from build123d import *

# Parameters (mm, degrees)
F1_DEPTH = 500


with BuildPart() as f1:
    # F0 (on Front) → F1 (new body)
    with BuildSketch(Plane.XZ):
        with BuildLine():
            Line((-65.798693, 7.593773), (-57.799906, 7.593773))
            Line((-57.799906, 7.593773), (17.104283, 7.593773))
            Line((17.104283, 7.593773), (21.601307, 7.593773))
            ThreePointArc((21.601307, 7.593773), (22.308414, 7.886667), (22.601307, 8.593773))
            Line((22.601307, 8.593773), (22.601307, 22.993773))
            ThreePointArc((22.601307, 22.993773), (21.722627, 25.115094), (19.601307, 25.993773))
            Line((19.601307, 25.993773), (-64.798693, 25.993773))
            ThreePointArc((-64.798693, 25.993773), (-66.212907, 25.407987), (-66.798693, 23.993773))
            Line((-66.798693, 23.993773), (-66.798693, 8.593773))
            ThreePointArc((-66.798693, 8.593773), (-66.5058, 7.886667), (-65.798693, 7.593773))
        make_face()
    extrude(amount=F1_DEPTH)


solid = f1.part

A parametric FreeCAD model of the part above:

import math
import FreeCAD as App
import Part
import Sketcher
from FreeCAD import Vector

doc = App.newDocument("Part")
body = doc.addObject("PartDesign::Body", "Body")

sketch1 = body.newObject("Sketcher::SketchObject", "Sketch")
sketch1.AttachmentSupport = (doc.getObject("XZ_Plane"), [""])
sketch1.MapMode = "FlatFace"
sketch1.addGeometry([
    Part.LineSegment(Vector(-65.8, 7.6, 0), Vector(21.6, 7.6, 0)),
    Part.ArcOfCircle(Part.Circle(Vector(21.6, 8.6, 0), Vector(0, 0, 1), 1), math.radians(-90), math.radians(0)),
    Part.LineSegment(Vector(22.6, 8.6, 0), Vector(22.6, 23, 0)),
    Part.ArcOfCircle(Part.Circle(Vector(19.6, 23, 0), Vector(0, 0, 1), 3), math.radians(0), math.radians(90)),
    Part.LineSegment(Vector(19.6, 26, 0), Vector(-64.8, 26, 0)),
    Part.ArcOfCircle(Part.Circle(Vector(-64.8, 24, 0), Vector(0, 0, 1), 2), math.radians(90), math.radians(180)),
    Part.LineSegment(Vector(-66.8, 24, 0), Vector(-66.8, 8.6, 0)),
    Part.ArcOfCircle(Part.Circle(Vector(-65.8, 8.6, 0), Vector(0, 0, 1), 1), math.radians(-180), math.radians(-90)),
], False)
sketch1.addConstraint([
    Sketcher.Constraint("Tangent", 0, 2, 1, 1),
    Sketcher.Constraint("Tangent", 1, 2, 2, 1),
    Sketcher.Constraint("Tangent", 2, 2, 3, 1),
    Sketcher.Constraint("Tangent", 3, 2, 4, 1),
    Sketcher.Constraint("Tangent", 4, 2, 5, 1),
    Sketcher.Constraint("Tangent", 5, 2, 6, 1),
    Sketcher.Constraint("Tangent", 6, 2, 7, 1),
    Sketcher.Constraint("Tangent", 7, 2, 0, 1),
    Sketcher.Constraint("Horizontal", 0),
    Sketcher.Constraint("Vertical", 2),
    Sketcher.Constraint("Horizontal", 4),
    Sketcher.Constraint("Vertical", 6),
    Sketcher.Constraint("Equal", 1, 7),
    Sketcher.Constraint("Radius", 1, 1.000001),
    Sketcher.Constraint("Radius", 3, 2.999999),
    Sketcher.Constraint("Radius", 5, 1.999999),
    Sketcher.Constraint("DistanceX", 0, 1, 0, 2, 87.4),
    Sketcher.Constraint("DistanceY", 2, 1, 2, 2, 14.4),
    Sketcher.Constraint("DistanceX", -1, 1, 1, 3, 21.601306),
    Sketcher.Constraint("DistanceY", -1, 1, 1, 3, 8.593774),
])
pad1 = body.newObject("PartDesign::Pad", "Pad")
pad1.Profile = sketch1
pad1.Length = 500

doc.recompute()
